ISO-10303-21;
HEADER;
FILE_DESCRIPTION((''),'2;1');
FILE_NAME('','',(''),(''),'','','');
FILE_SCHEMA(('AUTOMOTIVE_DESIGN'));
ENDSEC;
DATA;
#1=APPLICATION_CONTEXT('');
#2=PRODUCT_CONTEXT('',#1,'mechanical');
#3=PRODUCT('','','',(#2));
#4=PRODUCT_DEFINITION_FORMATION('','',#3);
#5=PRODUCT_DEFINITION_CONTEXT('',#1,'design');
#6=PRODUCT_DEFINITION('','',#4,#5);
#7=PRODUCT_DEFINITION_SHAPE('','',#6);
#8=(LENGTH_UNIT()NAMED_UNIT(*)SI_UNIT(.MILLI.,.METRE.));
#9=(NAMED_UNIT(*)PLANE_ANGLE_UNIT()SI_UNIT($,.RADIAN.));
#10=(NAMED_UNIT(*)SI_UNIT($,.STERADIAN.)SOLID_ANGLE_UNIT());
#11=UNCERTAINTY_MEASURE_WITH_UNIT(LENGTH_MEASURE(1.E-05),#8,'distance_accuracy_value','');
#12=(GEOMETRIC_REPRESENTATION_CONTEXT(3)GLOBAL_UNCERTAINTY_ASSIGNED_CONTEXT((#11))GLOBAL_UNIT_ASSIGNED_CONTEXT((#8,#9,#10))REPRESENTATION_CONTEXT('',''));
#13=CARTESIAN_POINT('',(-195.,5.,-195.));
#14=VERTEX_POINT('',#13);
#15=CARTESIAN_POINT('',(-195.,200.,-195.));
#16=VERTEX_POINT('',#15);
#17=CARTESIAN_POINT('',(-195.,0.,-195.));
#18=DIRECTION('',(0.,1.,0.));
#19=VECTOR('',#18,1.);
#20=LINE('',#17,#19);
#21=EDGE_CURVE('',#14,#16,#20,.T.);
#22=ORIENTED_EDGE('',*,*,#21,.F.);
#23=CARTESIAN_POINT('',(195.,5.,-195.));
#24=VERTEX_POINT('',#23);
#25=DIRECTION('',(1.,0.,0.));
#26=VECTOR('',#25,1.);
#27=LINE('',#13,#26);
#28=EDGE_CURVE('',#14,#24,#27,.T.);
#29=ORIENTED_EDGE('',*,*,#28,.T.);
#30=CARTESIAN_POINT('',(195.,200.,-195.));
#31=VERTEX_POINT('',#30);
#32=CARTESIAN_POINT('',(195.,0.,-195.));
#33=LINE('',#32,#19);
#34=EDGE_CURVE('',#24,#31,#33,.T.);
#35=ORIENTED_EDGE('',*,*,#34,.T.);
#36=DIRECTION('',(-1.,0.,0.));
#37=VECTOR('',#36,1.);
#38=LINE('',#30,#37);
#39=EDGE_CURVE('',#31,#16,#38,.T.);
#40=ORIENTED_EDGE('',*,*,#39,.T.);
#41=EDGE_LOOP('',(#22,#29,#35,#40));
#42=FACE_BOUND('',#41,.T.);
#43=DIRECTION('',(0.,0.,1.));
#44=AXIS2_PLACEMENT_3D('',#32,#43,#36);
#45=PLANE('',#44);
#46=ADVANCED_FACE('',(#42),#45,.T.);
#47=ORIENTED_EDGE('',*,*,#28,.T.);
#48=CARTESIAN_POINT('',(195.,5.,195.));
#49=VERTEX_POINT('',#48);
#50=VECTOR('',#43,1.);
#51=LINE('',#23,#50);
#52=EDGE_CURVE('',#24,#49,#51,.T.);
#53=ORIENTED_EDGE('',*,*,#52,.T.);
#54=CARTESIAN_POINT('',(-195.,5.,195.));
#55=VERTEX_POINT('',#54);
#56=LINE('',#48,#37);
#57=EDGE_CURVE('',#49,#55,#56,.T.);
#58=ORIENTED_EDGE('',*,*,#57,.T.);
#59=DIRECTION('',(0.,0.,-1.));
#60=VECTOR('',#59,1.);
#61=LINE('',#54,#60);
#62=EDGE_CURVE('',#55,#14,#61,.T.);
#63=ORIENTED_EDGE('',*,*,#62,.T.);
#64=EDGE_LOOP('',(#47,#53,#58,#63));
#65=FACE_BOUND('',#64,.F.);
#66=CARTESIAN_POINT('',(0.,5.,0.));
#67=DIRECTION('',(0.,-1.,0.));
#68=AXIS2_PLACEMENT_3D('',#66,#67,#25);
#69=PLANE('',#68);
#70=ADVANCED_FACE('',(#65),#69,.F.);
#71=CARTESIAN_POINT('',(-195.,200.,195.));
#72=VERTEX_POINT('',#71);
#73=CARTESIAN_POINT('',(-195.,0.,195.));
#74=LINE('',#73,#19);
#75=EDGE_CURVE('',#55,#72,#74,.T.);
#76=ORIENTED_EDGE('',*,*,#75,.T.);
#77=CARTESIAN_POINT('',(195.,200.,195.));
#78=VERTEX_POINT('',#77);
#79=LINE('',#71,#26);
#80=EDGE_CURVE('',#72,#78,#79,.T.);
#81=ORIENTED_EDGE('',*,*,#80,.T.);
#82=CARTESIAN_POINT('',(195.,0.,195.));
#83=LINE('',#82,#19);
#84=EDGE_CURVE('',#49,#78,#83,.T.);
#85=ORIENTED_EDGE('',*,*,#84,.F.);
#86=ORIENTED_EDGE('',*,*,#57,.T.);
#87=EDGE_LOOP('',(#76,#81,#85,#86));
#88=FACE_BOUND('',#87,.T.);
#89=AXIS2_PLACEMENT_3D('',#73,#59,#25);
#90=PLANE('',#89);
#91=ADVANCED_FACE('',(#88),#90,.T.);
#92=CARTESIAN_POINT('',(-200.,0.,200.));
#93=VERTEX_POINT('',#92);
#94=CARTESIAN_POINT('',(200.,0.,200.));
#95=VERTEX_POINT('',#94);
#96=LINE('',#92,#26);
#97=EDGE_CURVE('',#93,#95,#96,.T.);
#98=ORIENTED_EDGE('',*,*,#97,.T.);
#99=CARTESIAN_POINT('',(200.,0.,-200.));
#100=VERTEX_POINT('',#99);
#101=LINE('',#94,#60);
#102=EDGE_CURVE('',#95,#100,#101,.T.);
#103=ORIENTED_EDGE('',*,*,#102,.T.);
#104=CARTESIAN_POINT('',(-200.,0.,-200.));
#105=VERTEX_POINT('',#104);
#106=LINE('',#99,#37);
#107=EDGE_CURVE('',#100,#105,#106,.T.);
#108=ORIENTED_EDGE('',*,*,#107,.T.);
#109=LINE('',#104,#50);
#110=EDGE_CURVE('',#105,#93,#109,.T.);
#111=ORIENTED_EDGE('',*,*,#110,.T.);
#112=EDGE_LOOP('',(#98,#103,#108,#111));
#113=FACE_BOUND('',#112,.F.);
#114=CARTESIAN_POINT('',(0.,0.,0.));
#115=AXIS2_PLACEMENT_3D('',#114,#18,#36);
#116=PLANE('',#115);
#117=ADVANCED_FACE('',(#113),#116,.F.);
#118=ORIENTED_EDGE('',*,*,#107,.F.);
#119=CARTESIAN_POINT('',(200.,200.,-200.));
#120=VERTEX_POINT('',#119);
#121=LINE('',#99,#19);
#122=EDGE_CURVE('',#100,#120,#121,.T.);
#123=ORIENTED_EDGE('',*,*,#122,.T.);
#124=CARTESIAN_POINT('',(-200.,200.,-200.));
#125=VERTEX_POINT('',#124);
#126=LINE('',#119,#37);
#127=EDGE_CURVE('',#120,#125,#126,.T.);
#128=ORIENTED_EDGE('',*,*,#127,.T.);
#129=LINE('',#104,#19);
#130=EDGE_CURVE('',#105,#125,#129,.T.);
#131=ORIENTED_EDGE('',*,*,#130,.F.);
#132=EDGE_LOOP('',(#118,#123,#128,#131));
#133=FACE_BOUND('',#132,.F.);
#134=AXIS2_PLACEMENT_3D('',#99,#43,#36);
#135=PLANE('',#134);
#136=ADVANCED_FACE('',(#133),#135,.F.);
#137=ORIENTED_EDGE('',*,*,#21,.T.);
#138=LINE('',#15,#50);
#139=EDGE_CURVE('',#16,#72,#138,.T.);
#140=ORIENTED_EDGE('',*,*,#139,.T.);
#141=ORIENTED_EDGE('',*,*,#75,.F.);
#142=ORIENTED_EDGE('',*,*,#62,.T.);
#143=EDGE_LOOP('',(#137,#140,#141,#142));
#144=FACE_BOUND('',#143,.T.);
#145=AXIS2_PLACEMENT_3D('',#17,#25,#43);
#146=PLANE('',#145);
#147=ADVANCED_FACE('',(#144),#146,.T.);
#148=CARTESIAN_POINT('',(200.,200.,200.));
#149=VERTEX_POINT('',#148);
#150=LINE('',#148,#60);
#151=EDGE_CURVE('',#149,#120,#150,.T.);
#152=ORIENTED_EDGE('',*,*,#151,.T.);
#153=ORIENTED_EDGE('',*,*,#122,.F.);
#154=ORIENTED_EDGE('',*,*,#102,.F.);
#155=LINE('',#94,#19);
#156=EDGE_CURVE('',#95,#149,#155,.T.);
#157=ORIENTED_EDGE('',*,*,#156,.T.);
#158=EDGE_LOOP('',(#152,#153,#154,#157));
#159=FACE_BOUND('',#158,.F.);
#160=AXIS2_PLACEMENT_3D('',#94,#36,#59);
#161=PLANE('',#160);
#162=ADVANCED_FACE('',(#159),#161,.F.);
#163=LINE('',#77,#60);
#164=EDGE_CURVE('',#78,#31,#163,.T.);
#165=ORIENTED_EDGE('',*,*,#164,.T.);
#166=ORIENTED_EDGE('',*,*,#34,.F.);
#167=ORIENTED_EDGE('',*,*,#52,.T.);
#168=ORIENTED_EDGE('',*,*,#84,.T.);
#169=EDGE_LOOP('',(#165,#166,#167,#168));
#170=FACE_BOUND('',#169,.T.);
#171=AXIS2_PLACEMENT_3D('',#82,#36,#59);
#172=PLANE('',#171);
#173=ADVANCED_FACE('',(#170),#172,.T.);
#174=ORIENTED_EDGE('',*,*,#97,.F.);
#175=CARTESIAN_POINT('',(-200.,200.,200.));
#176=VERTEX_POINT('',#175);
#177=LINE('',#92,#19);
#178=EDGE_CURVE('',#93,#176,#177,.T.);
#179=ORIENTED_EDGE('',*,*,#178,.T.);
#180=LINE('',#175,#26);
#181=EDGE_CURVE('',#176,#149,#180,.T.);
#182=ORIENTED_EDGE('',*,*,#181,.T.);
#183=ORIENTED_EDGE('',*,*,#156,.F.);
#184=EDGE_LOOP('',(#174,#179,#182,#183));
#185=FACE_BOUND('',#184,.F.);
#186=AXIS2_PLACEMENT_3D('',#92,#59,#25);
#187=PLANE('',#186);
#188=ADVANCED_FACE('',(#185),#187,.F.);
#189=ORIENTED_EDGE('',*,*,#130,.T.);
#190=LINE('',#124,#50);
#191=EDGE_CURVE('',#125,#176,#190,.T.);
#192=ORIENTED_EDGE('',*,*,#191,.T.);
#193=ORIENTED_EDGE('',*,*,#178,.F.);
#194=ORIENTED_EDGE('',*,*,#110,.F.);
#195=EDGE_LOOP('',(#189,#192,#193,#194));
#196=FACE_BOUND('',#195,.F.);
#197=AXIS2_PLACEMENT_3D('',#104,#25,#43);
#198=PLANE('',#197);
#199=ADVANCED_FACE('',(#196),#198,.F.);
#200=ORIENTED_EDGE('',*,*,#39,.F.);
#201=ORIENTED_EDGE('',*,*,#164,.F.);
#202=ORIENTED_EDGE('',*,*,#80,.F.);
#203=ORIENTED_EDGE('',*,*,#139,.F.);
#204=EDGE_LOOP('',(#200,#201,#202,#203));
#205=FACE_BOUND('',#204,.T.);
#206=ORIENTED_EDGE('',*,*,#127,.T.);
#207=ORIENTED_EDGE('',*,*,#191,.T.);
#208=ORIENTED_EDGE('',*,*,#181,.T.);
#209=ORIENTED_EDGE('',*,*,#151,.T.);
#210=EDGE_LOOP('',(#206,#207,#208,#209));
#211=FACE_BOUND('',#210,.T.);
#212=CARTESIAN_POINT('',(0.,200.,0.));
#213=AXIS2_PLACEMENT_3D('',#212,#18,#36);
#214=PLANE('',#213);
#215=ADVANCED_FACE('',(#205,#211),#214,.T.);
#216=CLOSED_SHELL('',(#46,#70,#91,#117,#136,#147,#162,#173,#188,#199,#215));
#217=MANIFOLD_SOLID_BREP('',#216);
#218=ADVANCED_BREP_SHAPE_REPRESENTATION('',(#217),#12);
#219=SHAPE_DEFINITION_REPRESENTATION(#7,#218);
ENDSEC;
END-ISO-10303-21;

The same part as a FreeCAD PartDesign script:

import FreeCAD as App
import Part
import Sketcher

V = App.Vector
Q = App.Units.Quantity

doc = App.newDocument("Part")
body = doc.addObject("PartDesign::Body", "Body")

# Sketch on XZ plane
sketch1 = body.newObject("Sketcher::SketchObject", "Sketch")
sketch1.AttachmentSupport = (doc.getObject("XZ_Plane"), [""])
sketch1.MapMode = "FlatFace"
sketch1.addGeometry([
    Part.LineSegment(V(-200, -200, 0), V(-200, 200, 0)),  # 0
    Part.LineSegment(V(-200, 200, 0), V(200, 200, 0)),  # 1
    Part.LineSegment(V(200, 200, 0), V(200, -200, 0)),  # 2
    Part.LineSegment(V(200, -200, 0), V(-200, -200, 0)),  # 3
    Part.LineSegment(V(195, 195, 0), V(-195, 195, 0)),  # 4
    Part.LineSegment(V(-195, 195, 0), V(-195, -195, 0)),  # 5
    Part.LineSegment(V(-195, -195, 0), V(195, -195, 0)),  # 6
    Part.LineSegment(V(195, -195, 0), V(195, 195, 0)),  # 7
], False)
sketch1.addConstraint([
    Sketcher.Constraint("Coincident", 0, 2, 1, 1),
    Sketcher.Constraint("Coincident", 1, 2, 2, 1),
    Sketcher.Constraint("Coincident", 2, 2, 3, 1),
    Sketcher.Constraint("Coincident", 3, 2, 0, 1),
    Sketcher.Constraint("Coincident", 4, 2, 5, 1),
    Sketcher.Constraint("Coincident", 5, 2, 6, 1),
    Sketcher.Constraint("Coincident", 6, 2, 7, 1),
    Sketcher.Constraint("Coincident", 7, 2, 4, 1),
    Sketcher.Constraint("Vertical", 0),
    Sketcher.Constraint("Horizontal", 1),
    Sketcher.Constraint("Vertical", 2),
    Sketcher.Constraint("Horizontal", 3),
    Sketcher.Constraint("Horizontal", 4),
    Sketcher.Constraint("Vertical", 5),
    Sketcher.Constraint("Horizontal", 6),
    Sketcher.Constraint("Vertical", 7),
    Sketcher.Constraint("Symmetric", 0, 2, 2, 2, -1, 1),
    Sketcher.Constraint("Symmetric", 4, 2, 6, 2, -1, 1),
    Sketcher.Constraint("Equal", 3, 0),
    Sketcher.Constraint("Equal", 6, 5),
    Sketcher.Constraint("DistanceX", 1, 1, 1, 2, Q("400 mm")),
    Sketcher.Constraint("DistanceX", 4, 2, 4, 1, Q("390 mm")),
])
pad1 = body.newObject("PartDesign::Pad", "Pad")
pad1.Profile = sketch1
pad1.Length = 200
pad1.Reversed = True

# Sketch on XZ plane
sketch2 = body.newObject("Sketcher::SketchObject", "Sketch001")
sketch2.AttachmentSupport = (doc.getObject("XZ_Plane"), [""])
sketch2.MapMode = "FlatFace"
sketch2.addGeometry([
    Part.LineSegment(V(195, -195, 0), V(195, 195, 0)),
    Part.LineSegment(V(195, 195, 0), V(-195, 195, 0)),
    Part.LineSegment(V(-195, 195, 0), V(-195, -195, 0)),
    Part.LineSegment(V(-195, -195, 0), V(195, -195, 0)),
], False)
sketch2.addConstraint([
    Sketcher.Constraint("Coincident", 0, 2, 1, 1),
    Sketcher.Constraint("Coincident", 1, 2, 2, 1),
    Sketcher.Constraint("Coincident", 2, 2, 3, 1),
    Sketcher.Constraint("Coincident", 3, 2, 0, 1),
    Sketcher.Constraint("Vertical", 0),
    Sketcher.Constraint("Horizontal", 1),
    Sketcher.Constraint("Vertical", 2),
    Sketcher.Constraint("Horizontal", 3),
    Sketcher.Constraint("Symmetric", 0, 2, 2, 2, -1, 1),
    Sketcher.Constraint("Equal", 3, 0),
    Sketcher.Constraint("DistanceX", 1, 2, 1, 1, Q("390 mm")),
])
pad2 = body.newObject("PartDesign::Pad", "Pad001")
pad2.Profile = sketch2
pad2.Length = 5
pad2.Reversed = True

doc.recompute()
